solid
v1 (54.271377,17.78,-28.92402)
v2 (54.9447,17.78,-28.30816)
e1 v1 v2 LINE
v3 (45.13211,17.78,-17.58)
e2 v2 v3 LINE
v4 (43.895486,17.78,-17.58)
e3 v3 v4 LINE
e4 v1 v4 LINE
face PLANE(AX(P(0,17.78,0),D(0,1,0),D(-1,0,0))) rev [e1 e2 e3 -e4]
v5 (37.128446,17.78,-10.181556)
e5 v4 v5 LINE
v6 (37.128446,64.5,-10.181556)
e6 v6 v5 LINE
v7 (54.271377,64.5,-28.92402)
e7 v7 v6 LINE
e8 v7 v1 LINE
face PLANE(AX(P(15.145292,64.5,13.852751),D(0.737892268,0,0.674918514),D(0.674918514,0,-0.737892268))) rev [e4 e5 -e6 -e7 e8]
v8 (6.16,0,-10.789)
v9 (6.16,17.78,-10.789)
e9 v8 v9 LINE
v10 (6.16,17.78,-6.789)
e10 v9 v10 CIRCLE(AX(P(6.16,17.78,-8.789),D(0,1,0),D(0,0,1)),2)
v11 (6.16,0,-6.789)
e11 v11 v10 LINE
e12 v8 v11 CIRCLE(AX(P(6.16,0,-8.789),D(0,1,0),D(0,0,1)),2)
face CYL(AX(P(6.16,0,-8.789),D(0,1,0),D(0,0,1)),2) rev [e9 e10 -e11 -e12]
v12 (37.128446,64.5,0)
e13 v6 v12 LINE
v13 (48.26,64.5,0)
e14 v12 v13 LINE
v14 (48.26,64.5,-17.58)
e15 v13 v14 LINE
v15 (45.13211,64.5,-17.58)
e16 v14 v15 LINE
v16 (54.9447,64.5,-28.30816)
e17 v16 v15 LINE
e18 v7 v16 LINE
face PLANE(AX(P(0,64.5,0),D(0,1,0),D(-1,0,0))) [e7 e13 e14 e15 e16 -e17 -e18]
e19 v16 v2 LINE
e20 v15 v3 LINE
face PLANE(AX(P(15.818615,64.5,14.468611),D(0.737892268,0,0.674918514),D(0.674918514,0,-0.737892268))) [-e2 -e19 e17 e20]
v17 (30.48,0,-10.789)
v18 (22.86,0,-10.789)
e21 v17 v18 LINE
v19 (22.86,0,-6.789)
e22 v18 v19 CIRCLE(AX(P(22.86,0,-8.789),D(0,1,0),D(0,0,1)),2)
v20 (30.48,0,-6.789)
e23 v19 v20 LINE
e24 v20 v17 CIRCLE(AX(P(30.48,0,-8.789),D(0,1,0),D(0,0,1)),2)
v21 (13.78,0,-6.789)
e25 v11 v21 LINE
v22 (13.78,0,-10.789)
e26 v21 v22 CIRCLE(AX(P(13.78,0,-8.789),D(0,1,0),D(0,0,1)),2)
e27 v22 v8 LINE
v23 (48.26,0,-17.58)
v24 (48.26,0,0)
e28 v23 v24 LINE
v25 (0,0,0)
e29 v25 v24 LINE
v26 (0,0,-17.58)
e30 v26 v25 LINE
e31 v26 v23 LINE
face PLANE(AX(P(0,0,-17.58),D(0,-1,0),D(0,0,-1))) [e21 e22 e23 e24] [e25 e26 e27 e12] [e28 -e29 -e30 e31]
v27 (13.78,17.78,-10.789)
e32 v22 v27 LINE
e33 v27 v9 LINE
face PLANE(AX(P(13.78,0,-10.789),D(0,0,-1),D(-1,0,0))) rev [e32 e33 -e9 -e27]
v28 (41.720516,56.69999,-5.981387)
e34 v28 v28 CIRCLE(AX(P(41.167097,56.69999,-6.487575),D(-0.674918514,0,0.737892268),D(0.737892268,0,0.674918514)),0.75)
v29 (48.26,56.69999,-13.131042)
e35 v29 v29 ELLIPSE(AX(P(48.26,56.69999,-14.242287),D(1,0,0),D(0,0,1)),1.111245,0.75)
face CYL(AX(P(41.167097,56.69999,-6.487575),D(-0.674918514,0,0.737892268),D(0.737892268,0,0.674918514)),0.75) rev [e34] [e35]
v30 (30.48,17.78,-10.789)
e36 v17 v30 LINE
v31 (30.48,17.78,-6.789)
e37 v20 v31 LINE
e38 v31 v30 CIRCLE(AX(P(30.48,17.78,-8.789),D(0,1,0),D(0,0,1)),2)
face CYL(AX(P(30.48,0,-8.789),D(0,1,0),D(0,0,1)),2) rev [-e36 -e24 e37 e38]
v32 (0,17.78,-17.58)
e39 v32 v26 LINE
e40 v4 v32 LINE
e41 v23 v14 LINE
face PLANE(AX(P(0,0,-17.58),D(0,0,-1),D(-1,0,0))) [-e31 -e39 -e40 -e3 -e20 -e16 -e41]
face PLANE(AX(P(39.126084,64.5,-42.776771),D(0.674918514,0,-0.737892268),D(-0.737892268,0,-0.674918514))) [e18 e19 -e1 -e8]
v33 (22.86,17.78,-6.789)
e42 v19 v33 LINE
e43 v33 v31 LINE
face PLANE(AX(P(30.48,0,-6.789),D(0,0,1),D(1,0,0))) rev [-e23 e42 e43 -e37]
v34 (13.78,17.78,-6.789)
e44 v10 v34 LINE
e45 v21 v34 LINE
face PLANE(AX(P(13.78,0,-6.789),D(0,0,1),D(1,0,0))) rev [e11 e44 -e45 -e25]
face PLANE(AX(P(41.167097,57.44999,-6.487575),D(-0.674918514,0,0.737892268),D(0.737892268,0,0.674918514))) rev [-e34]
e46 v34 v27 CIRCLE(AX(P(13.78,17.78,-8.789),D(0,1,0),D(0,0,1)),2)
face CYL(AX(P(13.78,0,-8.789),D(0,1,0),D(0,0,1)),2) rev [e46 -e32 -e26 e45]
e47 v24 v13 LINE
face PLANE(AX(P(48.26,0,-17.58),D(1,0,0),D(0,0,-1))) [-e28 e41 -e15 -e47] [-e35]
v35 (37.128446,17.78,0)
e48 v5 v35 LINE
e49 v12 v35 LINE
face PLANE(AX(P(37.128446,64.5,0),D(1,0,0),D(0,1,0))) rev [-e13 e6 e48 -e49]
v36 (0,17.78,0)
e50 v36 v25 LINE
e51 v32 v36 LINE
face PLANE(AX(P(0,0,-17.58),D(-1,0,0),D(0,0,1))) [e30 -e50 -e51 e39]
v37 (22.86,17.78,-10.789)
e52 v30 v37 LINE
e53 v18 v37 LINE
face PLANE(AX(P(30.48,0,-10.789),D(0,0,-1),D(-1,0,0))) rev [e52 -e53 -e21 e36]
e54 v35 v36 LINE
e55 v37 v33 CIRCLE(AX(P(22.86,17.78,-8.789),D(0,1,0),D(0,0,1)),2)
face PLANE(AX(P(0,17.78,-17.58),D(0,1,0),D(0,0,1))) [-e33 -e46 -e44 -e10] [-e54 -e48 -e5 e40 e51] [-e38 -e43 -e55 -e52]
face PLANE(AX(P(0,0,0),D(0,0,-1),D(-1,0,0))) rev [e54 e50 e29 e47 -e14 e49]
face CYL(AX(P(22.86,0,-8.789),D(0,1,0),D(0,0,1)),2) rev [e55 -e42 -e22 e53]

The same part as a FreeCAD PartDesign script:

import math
import FreeCAD as App
import Part
import Sketcher

V = App.Vector
Q = App.Units.Quantity

doc = App.newDocument("Part")
body = doc.addObject("PartDesign::Body", "Body")

# Sketch on XY plane
sketch1 = body.newObject("Sketcher::SketchObject", "Sketch")
sketch1.AttachmentSupport = (doc.getObject("XY_Plane"), [""])
sketch1.MapMode = "FlatFace"
sketch1.addGeometry([
    Part.LineSegment(V(0, 18, 0), V(0, 0, 0)),
    Part.LineSegment(V(0, 0, 0), V(48, 0, 0)),
    Part.LineSegment(V(48, 0, 0), V(48, 18, 0)),
    Part.LineSegment(V(48, 18, 0), V(0, 18, 0)),
], False)
sketch1.addConstraint([
    Sketcher.Constraint("Coincident", 0, 2, 1, 1),
    Sketcher.Constraint("Coincident", 1, 2, 2, 1),
    Sketcher.Constraint("Coincident", 2, 2, 3, 1),
    Sketcher.Constraint("Coincident", 3, 2, 0, 1),
    Sketcher.Constraint("Vertical", 0),
    Sketcher.Constraint("Horizontal", 1),
    Sketcher.Constraint("Vertical", 2),
    Sketcher.Constraint("Horizontal", 3),
    Sketcher.Constraint("Coincident", 0, 2, -1, 1),
    Sketcher.Constraint("DistanceX", 1, 1, 1, 2, Q("1.9 in")),
    Sketcher.Constraint("DistanceY", 0, 2, 0, 1, Q("0.7 in")),
])
pad1 = body.newObject("PartDesign::Pad", "Pad")
pad1.Profile = sketch1
pad1.Length = 17.58
pad1.Reversed = True

# Sketch on XZ plane
sketch2 = body.newObject("Sketcher::SketchObject", "Sketch001")
sketch2.AttachmentSupport = (doc.getObject("XZ_Plane"), [""])
sketch2.MapMode = "FlatFace"
sketch2.AttachmentOffset = App.Placement(V(0, 0, -0.7 * 25.4), App.Rotation())
sketch2.addGeometry([
    Part.LineSegment(V(37.8, -9.6, 0), V(37.1, -10.2, 0)),  # 0
    Part.LineSegment(V(37.1, -10.2, 0), V(37.1, 0, 0)),  # 1
    Part.LineSegment(V(37.1, 0, 0), V(48.3, 0, 0)),  # 2
    Part.LineSegment(V(48.3, 0, 0), V(48.3, -17.6, 0)),  # 3
    Part.LineSegment(V(48.3, -17.6, 0), V(45.1, -17.6, 0)),  # 4
    Part.LineSegment(V(45.1, -17.6, 0), V(37.8, -9.6, 0)),  # 5
], False)
sketch2.addConstraint([
    Sketcher.Constraint("Coincident", 0, 2, 1, 1),
    Sketcher.Constraint("Coincident", 1, 2, 2, 1),
    Sketcher.Constraint("Coincident", 2, 2, 3, 1),
    Sketcher.Constraint("Coincident", 3, 2, 4, 1),
    Sketcher.Constraint("Coincident", 4, 2, 5, 1),
    Sketcher.Constraint("Coincident", 5, 2, 0, 1),
    Sketcher.Constraint("Vertical", 1),
    Sketcher.Constraint("Horizontal", 2),
    Sketcher.Constraint("Vertical", 3),
    Sketcher.Constraint("Horizontal", 4),
    Sketcher.Constraint("PointOnObject", 1, 2, -1),
    Sketcher.Constraint("Perpendicular", 0, 5),
    Sketcher.Constraint("DistanceX", -1, 1, 2, 2, Q("1.9 in")),
    Sketcher.Constraint("DistanceY", 3, 2, 3, 1, 17.58),
    Sketcher.Constraint("DistanceX", 4, 2, 4, 1, 3.12789),
    Sketcher.Constraint("DistanceX", 2, 1, 2, 2, 11.131554),
    Sketcher.Constraint("DistanceY", 1, 1, 1, 2, 10.181556),
    Sketcher.Constraint("DistanceX", -1, 1, 5, 2, 37.801769),
])
pad2 = body.newObject("PartDesign::Pad", "Pad001")
pad2.Profile = sketch2
pad2.Length = 46.72
pad2.Reversed = True

# Sketch on XZ plane
sketch3 = body.newObject("Sketcher::SketchObject", "Sketch002")
sketch3.AttachmentSupport = (doc.getObject("XZ_Plane"), [""])
sketch3.MapMode = "FlatFace"
sketch3.AttachmentOffset = App.Placement(V(0, 0, -0.7 * 25.4), App.Rotation())
sketch3.addGeometry([
    Part.LineSegment(V(22.9, -6.8, 0), V(30.5, -6.8, 0)),  # 0
    Part.ArcOfCircle(Part.Circle(V(30.5, -8.8, 0), V(0, 0, 1), 2), math.radians(-90), math.radians(90)),  # 1
    Part.LineSegment(V(30.5, -10.8, 0), V(22.9, -10.8, 0)),  # 2
    Part.ArcOfCircle(Part.Circle(V(22.9, -8.8, 0), V(0, 0, 1), 2), math.radians(90), math.radians(270)),  # 3
    Part.LineSegment(V(6.2, -6.8, 0), V(13.8, -6.8, 0)),  # 4
    Part.ArcOfCircle(Part.Circle(V(13.8, -8.8, 0), V(0, 0, 1), 2), math.radians(-90), math.radians(90)),  # 5
    Part.LineSegment(V(13.8, -10.8, 0), V(6.2, -10.8, 0)),  # 6
    Part.ArcOfCircle(Part.Circle(V(6.2, -8.8, 0), V(0, 0, 1), 2), math.radians(90), math.radians(270)),  # 7
], False)
sketch3.addConstraint([
    Sketcher.Constraint("Tangent", 0, 2, 1, 2),
    Sketcher.Constraint("Tangent", 1, 1, 2, 1),
    Sketcher.Constraint("Tangent", 2, 2, 3, 2),
    Sketcher.Constraint("Tangent", 3, 1, 0, 1),
    Sketcher.Constraint("Tangent", 4, 2, 5, 2),
    Sketcher.Constraint("Tangent", 5, 1, 6, 1),
    Sketcher.Constraint("Tangent", 6, 2, 7, 2),
    Sketcher.Constraint("Tangent", 7, 1, 4, 1),
    Sketcher.Constraint("Horizontal", 0),
    Sketcher.Constraint("Horizontal", 2),
    Sketcher.Constraint("Horizontal", 4),
    Sketcher.Constraint("Horizontal", 6),
    Sketcher.Constraint("Equal", 3, 5),
    Sketcher.Constraint("Horizontal", 3, 3, 5, 3),
    Sketcher.Constraint("Equal", 2, 4),
    Sketcher.Constraint("DistanceX", 0, 1, 0, 2, Q("0.3 in")),
    Sketcher.Constraint("DistanceX", -1, 1, 1, 3, Q("1.2 in")),
    Sketcher.Constraint("Radius", 1, 2.0),
    Sketcher.Constraint("DistanceY", 1, 3, -1, 1, 8.789),
    Sketcher.Constraint("DistanceX", -1, 1, 5, 3, 13.78),
])
pocket1 = body.newObject("PartDesign::Pocket", "Pocket")
pocket1.Profile = sketch3
pocket1.Type = "ThroughAll"
pocket1.Reversed = True

# Sketch on XZ plane
sketch4 = body.newObject("Sketcher::SketchObject", "Sketch003")
sketch4.AttachmentSupport = (doc.getObject("XZ_Plane"), [""])
sketch4.MapMode = "FlatFace"
sketch4.AttachmentOffset = App.Placement(V(0, 0, -0.7 * 25.4), App.Rotation())
sketch4.addGeometry([
    Part.LineSegment(V(54.9, -28.3, 0), V(54.3, -28.9, 0)),
    Part.LineSegment(V(54.3, -28.9, 0), V(37.1, -10.2, 0)),
    Part.LineSegment(V(37.1, -10.2, 0), V(37.8, -9.6, 0)),
    Part.LineSegment(V(37.8, -9.6, 0), V(54.9, -28.3, 0)),
], False)
sketch4.addConstraint([
    Sketcher.Constraint("Coincident", 0, 2, 1, 1),
    Sketcher.Constraint("Coincident", 1, 2, 2, 1),
    Sketcher.Constraint("Coincident", 2, 2, 3, 1),
    Sketcher.Constraint("Coincident", 3, 2, 0, 1),
    Sketcher.Constraint("Perpendicular", 0, 1),
    Sketcher.Constraint("Perpendicular", 1, 2),
    Sketcher.Constraint("Perpendicular", 2, 3),
    Sketcher.Constraint("Distance", 1, Q("1 in")),
    Sketcher.Constraint("DistanceX", -1, 1, 3, 2, 54.9447),
    Sketcher.Constraint("DistanceY", 0, 2, -1, 1, 28.92402),
    Sketcher.Constraint("DistanceX", -1, 1, 2, 2, 37.801769),
    Sketcher.Constraint("DistanceY", 3, 2, -1, 1, 28.30816),
])
pad3 = body.newObject("PartDesign::Pad", "Pad002")
pad3.Profile = sketch4
pad3.Length = 46.72
pad3.Reversed = True

# Sketch on XZ plane
sketch5 = body.newObject("Sketcher::SketchObject", "Sketch004")
sketch5.AttachmentSupport = (doc.getObject("XZ_Plane"), [""])
sketch5.MapMode = "FlatFace"
sketch5.AttachmentOffset = App.Placement(V(0, 0, -56.69999), App.Rotation())
sketch5.addGeometry([
    Part.LineSegment(V(58.6, -25.6, 0), V(41.2, -6.5, 0)),
    Part.LineSegment(V(41.2, -6.5, 0), V(41.7, -6, 0)),
    Part.LineSegment(V(41.7, -6, 0), V(59.2, -25.1, 0)),
    Part.LineSegment(V(59.2, -25.1, 0), V(58.6, -25.6, 0)),
], False)
sketch5.addGeometry(Part.LineSegment(V(41.2, -6.5, 0), V(58.6, -25.6, 0)), True)  # axis
sketch5.addConstraint([
    Sketcher.Constraint("Coincident", 0, 2, 1, 1),
    Sketcher.Constraint("Coincident", 1, 2, 2, 1),
    Sketcher.Constraint("Coincident", 2, 2, 3, 1),
    Sketcher.Constraint("Coincident", 3, 2, 0, 1),
    Sketcher.Constraint("Coincident", 4, 1, 0, 2),
    Sketcher.Constraint("Coincident", 4, 2, 3, 2),
    Sketcher.Constraint("Perpendicular", 0, 1),
    Sketcher.Constraint("Perpendicular", 1, 2),
    Sketcher.Constraint("Perpendicular", 2, 3),
    Sketcher.Constraint("Distance", 1, 0.75),
    Sketcher.Constraint("DistanceY", 2, 2, 0, 2, 18.571601),
    Sketcher.Constraint("Distance", 0, 25.854438),
    Sketcher.Constraint("DistanceX", -1, 1, 0, 2, 41.167097),
    Sketcher.Constraint("DistanceY", 0, 2, -1, 1, 6.487575),
])
groove = body.newObject("PartDesign::Groove", "Groove")
groove.Profile = sketch5
groove.ReferenceAxis = (sketch5, ["Axis0"])
groove.Angle = 360

doc.recompute()
